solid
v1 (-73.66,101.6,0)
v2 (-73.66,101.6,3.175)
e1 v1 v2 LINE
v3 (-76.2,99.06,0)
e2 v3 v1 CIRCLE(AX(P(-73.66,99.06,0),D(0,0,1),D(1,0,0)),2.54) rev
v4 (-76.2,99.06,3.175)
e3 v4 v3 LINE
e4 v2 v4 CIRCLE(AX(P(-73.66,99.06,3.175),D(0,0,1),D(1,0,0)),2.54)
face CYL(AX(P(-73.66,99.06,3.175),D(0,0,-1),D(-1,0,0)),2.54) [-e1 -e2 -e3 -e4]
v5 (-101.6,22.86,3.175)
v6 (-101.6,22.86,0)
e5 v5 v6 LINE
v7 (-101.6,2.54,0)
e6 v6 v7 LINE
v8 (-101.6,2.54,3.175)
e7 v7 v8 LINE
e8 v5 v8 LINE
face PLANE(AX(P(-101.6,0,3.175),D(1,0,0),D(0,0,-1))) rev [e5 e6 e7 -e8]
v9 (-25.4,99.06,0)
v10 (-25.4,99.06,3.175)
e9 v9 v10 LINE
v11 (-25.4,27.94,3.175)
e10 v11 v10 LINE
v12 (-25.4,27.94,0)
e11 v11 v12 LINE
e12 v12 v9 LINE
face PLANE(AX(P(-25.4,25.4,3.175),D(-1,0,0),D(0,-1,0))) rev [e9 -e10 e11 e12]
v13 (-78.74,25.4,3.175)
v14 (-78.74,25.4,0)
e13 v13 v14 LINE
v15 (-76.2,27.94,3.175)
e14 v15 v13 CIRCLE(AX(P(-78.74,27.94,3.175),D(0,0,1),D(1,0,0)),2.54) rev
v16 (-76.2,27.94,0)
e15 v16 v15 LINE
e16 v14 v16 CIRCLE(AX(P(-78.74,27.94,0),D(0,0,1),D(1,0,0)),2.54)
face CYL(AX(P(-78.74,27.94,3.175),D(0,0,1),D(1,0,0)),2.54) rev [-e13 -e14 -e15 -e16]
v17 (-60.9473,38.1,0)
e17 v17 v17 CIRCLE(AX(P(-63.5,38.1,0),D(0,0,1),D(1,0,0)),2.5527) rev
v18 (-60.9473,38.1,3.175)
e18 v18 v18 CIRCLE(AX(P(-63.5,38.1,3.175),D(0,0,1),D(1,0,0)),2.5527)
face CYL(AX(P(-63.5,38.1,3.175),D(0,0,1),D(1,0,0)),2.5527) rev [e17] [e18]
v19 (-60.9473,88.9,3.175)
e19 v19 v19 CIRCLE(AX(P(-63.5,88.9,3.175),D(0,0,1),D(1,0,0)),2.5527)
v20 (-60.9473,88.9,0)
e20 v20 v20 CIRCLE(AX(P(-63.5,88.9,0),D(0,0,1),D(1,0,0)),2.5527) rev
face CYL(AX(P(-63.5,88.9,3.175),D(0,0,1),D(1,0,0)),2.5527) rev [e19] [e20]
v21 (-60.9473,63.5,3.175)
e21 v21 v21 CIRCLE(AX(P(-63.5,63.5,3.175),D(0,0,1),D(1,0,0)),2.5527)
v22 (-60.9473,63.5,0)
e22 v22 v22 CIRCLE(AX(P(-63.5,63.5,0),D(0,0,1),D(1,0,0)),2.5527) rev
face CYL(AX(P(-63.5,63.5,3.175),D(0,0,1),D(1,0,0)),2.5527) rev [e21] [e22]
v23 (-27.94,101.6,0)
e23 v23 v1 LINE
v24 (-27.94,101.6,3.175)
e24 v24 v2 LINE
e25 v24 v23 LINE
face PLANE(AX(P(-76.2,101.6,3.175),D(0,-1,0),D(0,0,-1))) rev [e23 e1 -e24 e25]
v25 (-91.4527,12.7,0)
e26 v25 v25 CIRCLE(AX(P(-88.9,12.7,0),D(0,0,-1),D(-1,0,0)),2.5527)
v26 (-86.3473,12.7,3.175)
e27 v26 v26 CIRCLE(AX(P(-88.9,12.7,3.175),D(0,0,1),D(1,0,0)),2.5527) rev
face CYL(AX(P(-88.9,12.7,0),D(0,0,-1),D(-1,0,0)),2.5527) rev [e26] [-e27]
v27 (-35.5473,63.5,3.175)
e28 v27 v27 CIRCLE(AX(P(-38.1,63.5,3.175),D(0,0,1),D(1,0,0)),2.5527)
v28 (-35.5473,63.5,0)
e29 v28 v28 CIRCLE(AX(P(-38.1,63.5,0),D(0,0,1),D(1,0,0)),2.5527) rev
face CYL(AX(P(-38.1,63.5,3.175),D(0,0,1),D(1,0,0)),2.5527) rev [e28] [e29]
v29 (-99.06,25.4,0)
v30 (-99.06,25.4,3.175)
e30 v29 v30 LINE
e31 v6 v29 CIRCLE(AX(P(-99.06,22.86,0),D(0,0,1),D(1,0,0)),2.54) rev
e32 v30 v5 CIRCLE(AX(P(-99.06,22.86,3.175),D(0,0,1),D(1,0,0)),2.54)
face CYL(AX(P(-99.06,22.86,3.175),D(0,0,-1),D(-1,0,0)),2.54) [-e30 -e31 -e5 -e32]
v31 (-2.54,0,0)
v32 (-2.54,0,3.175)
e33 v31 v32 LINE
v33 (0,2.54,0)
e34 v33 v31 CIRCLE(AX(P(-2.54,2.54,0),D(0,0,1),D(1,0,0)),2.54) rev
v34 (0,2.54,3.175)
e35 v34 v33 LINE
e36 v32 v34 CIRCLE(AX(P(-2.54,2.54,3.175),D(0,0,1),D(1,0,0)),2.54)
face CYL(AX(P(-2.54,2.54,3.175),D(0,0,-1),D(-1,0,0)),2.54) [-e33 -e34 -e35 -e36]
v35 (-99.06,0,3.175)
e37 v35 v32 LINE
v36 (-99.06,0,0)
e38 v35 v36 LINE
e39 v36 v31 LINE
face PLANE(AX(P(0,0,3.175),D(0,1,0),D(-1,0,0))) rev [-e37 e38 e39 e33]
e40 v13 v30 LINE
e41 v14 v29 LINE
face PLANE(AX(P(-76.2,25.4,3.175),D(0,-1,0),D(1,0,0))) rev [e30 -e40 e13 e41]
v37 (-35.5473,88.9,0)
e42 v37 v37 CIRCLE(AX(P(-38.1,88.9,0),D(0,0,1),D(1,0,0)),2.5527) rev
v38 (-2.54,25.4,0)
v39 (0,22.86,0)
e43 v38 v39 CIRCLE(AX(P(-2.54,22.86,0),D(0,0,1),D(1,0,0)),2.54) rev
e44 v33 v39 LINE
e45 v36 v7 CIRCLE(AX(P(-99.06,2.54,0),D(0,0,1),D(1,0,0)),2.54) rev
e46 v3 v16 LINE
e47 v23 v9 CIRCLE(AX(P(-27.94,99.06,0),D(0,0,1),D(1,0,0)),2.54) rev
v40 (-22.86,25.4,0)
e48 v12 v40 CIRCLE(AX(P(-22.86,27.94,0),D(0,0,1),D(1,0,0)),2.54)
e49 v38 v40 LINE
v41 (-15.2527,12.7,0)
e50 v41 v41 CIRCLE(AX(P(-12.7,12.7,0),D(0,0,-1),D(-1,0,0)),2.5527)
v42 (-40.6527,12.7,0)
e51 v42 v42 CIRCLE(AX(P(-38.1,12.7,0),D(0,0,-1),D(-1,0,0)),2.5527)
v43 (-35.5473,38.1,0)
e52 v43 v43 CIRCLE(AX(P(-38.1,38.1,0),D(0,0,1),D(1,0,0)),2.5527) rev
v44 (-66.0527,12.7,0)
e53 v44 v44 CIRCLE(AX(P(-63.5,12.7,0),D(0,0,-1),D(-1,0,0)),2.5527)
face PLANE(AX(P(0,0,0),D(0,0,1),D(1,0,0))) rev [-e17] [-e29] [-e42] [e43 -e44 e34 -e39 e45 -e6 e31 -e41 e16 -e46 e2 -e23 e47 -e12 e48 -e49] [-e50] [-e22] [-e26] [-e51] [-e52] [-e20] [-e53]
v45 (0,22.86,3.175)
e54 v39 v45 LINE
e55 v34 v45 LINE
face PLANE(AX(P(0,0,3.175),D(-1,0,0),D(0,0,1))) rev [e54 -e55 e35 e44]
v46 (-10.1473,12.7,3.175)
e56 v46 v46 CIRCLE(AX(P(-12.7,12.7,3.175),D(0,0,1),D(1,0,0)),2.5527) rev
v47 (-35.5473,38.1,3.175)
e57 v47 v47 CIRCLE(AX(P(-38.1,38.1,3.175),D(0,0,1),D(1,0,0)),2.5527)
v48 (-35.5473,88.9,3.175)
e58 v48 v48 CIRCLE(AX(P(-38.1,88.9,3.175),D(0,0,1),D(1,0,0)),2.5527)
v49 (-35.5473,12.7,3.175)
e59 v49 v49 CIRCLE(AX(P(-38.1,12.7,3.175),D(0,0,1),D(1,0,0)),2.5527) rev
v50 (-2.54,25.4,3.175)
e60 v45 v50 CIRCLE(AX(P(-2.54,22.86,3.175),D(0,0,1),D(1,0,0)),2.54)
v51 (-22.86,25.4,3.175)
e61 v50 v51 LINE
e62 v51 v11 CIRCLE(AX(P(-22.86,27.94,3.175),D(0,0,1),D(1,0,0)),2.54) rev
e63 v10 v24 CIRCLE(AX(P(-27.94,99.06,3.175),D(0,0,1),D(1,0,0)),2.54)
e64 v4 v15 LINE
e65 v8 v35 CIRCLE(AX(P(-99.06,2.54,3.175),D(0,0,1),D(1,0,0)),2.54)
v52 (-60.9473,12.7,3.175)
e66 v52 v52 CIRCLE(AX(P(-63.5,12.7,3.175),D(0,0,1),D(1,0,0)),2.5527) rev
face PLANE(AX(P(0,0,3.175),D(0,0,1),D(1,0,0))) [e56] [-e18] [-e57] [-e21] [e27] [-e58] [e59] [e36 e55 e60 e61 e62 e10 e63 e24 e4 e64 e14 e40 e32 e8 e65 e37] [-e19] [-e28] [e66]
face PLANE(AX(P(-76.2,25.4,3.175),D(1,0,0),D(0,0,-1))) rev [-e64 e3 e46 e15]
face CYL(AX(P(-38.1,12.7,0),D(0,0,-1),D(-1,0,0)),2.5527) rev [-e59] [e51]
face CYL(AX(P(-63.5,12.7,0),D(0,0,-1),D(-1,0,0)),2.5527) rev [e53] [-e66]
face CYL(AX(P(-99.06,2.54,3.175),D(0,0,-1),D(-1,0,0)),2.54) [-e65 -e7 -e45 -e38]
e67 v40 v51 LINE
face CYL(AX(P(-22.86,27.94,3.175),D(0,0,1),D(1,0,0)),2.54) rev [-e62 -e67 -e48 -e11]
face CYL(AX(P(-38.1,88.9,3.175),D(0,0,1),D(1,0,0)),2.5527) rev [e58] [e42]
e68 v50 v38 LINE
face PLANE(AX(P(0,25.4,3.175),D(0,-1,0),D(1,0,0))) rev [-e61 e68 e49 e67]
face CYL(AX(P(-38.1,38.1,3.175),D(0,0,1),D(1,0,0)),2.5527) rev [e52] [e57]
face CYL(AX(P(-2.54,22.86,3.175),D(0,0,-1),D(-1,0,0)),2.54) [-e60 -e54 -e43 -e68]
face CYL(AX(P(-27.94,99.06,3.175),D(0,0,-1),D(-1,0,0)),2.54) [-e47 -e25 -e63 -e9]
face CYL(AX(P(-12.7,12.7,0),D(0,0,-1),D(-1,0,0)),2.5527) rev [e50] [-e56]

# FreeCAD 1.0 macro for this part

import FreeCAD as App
import Part
import Sketcher
from FreeCAD import Vector
Q = App.Units.Quantity


def edges_at(feature, points):
    """Names of the edges that pass closest to the given points."""
    edges = feature.Shape.Edges
    near = lambda p: min(range(len(edges)), key=lambda i: edges[i].distToShape(Part.Vertex(*p))[0])
    return sorted({f"Edge{near(p) + 1}" for p in points})


def add_polygon(sketch, points):
    """Adds a closed chain of lines whose ends are joined by coincident constraints."""
    first, n = sketch.GeometryCount, len(points)
    for a, b in zip(points, points[1:] + points[:1]):
        sketch.addGeometry(Part.LineSegment(App.Vector(*a, 0), App.Vector(*b, 0)), False)
    for i in range(n):
        sketch.addConstraint(Sketcher.Constraint("Coincident", first + i, 2, first + (i + 1) % n, 1))

doc = App.newDocument("Part")
body = doc.addObject("PartDesign::Body", "Body")

sketch1 = doc.addObject("Sketcher::SketchObject", "Sketch")
body.addObject(sketch1)
sketch1.AttachmentSupport = (doc.XY_Plane, [""])
sketch1.MapMode = "FlatFace"
add_polygon(sketch1, [(-76.2, 25.4), (-101.6, 25.4), (-101.6, 0), (0, 0), (0, 25.4), (-25.4, 25.4), (-25.4, 101.6), (-76.2, 101.6)])
sketch1.addConstraint(Sketcher.Constraint("Horizontal", 0))
sketch1.addConstraint(Sketcher.Constraint("Vertical", 1))
sketch1.addConstraint(Sketcher.Constraint("Horizontal", 2))
sketch1.addConstraint(Sketcher.Constraint("Vertical", 3))
sketch1.addConstraint(Sketcher.Constraint("Horizontal", 4))
sketch1.addConstraint(Sketcher.Constraint("Vertical", 5))
sketch1.addConstraint(Sketcher.Constraint("Horizontal", 6))
sketch1.addConstraint(Sketcher.Constraint("Vertical", 7))
sketch1.addConstraint(Sketcher.Constraint("Coincident", 2, 2, -1, 1))
sketch1.addConstraint(Sketcher.Constraint("Horizontal", 0, 2, 3, 2))
sketch1.addConstraint(Sketcher.Constraint("Equal", 0, 4))
sketch1.addConstraint(Sketcher.Constraint("Equal", 4, 1))
sketch1.addConstraint(Sketcher.Constraint("DistanceX", 0, 2, 0, 1, Q("1 in")))
sketch1.addConstraint(Sketcher.Constraint("DistanceX", 2, 1, 2, 2, Q("4 in")))
sketch1.addConstraint(Sketcher.Constraint("DistanceY", 5, 1, 5, 2, Q("3 in")))
pad1 = doc.addObject("PartDesign::Pad", "Pad")
body.addObject(pad1)
pad1.Profile = sketch1
pad1.Length = Q("0.125 in")
doc.recompute()

fillet = doc.addObject("PartDesign::Fillet", "Fillet")
body.addObject(fillet)
fillet.Base = (pad1, edges_at(pad1, [
    (0, 0, 1.587),
    (-101.6, 0, 1.587),
    (-101.6, 25.4, 1.587),
    (-76.2, 25.4, 1.587),
    (-76.2, 101.6, 1.587),
    (-25.4, 101.6, 1.587),
    (-25.4, 25.4, 1.587),
    (0, 25.4, 1.587),
]))
fillet.Radius = Q("0.1 in")

sketch2 = doc.addObject("Sketcher::SketchObject", "Sketch001")
body.addObject(sketch2)
sketch2.AttachmentSupport = (doc.XY_Plane, [""])
sketch2.MapMode = "FlatFace"
sketch2.AttachmentOffset = App.Placement(Vector(0, 0, 0.125 * 25.4), App.Rotation())
sketch2.addGeometry(Part.Circle(Vector(-63.5, 88.9, 0), Vector(0, 0, 1), 2.5527), False)
sketch2.addGeometry(Part.Circle(Vector(-63.5, 63.5, 0), Vector(0, 0, 1), 2.5527), False)
sketch2.addGeometry(Part.Circle(Vector(-63.5, 38.1, 0), Vector(0, 0, 1), 2.5527), False)
sketch2.addGeometry(Part.Circle(Vector(-38.1, 88.9, 0), Vector(0, 0, 1), 2.5527), False)
sketch2.addGeometry(Part.Circle(Vector(-38.1, 63.5, 0), Vector(0, 0, 1), 2.5527), False)
sketch2.addGeometry(Part.Circle(Vector(-38.1, 38.1, 0), Vector(0, 0, 1), 2.5527), False)
sketch2.addConstraint(Sketcher.Constraint("Equal", 0, 1))
sketch2.addConstraint(Sketcher.Constraint("Equal", 1, 2))
sketch2.addConstraint(Sketcher.Constraint("Equal", 2, 3))
sketch2.addConstraint(Sketcher.Constraint("Equal", 3, 4))
sketch2.addConstraint(Sketcher.Constraint("Equal", 4, 5))
sketch2.addConstraint(Sketcher.Constraint("Horizontal", 0, 3, 3, 3))
sketch2.addConstraint(Sketcher.Constraint("Horizontal", 1, 3, 4, 3))
sketch2.addConstraint(Sketcher.Constraint("Horizontal", 2, 3, 5, 3))
sketch2.addConstraint(Sketcher.Constraint("Vertical", 0, 3, 1, 3))
sketch2.addConstraint(Sketcher.Constraint("Vertical", 1, 3, 2, 3))
sketch2.addConstraint(Sketcher.Constraint("Vertical", 3, 3, 4, 3))
sketch2.addConstraint(Sketcher.Constraint("Vertical", 4, 3, 5, 3))
sketch2.addConstraint(Sketcher.Constraint("Diameter", 0, Q("0.201 in")))
sketch2.addConstraint(Sketcher.Constraint("DistanceY", 1, 3, 0, 3, Q("1 in")))
sketch2.addConstraint(Sketcher.Constraint("DistanceY", 2, 3, 1, 3, Q("1 in")))
sketch2.addConstraint(Sketcher.Constraint("DistanceX", 0, 3, 3, 3, Q("1 in")))
sketch2.addConstraint(Sketcher.Constraint("DistanceX", 0, 3, -1, 1, Q("2.5 in")))
sketch2.addConstraint(Sketcher.Constraint("DistanceY", -1, 1, 0, 3, Q("3.5 in")))
doc.recompute()
hole = doc.addObject("PartDesign::Hole", "Hole")
body.addObject(hole)
hole.Profile = sketch2
hole.ThreadType = "None"
hole.Diameter = Q("0.201 in")
hole.DepthType = "ThroughAll"

sketch3 = doc.addObject("Sketcher::SketchObject", "Sketch002")
body.addObject(sketch3)
sketch3.AttachmentSupport = (doc.XY_Plane, [""])
sketch3.MapMode = "FlatFace"
sketch3.addGeometry(Part.Circle(Vector(-88.9, 12.7, 0), Vector(0, 0, 1), 2.5527), False)
sketch3.addGeometry(Part.Circle(Vector(-63.5, 12.7, 0), Vector(0, 0, 1), 2.5527), False)
sketch3.addGeometry(Part.Circle(Vector(-38.1, 12.7, 0), Vector(0, 0, 1), 2.5527), False)
sketch3.addGeometry(Part.Circle(Vector(-12.7, 12.7, 0), Vector(0, 0, 1), 2.5527), False)
sketch3.addConstraint(Sketcher.Constraint("Equal", 0, 1))
sketch3.addConstraint(Sketcher.Constraint("Equal", 1, 2))
sketch3.addConstraint(Sketcher.Constraint("Equal", 2, 3))
sketch3.addConstraint(Sketcher.Constraint("Horizontal", 0, 3, 1, 3))
sketch3.addConstraint(Sketcher.Constraint("Horizontal", 1, 3, 2, 3))
sketch3.addConstraint(Sketcher.Constraint("Horizontal", 2, 3, 3, 3))
sketch3.addConstraint(Sketcher.Constraint("Diameter", 0, Q("0.201 in")))
sketch3.addConstraint(Sketcher.Constraint("DistanceX", 0, 3, 1, 3, Q("1 in")))
sketch3.addConstraint(Sketcher.Constraint("DistanceX", 1, 3, 2, 3, Q("1 in")))
sketch3.addConstraint(Sketcher.Constraint("DistanceX", 2, 3, 3, 3, Q("1 in")))
sketch3.addConstraint(Sketcher.Constraint("DistanceX", 0, 3, -1, 1, Q("3.5 in")))
sketch3.addConstraint(Sketcher.Constraint("DistanceY", -1, 1, 0, 3, Q("0.5 in")))
doc.recompute()
hole2 = doc.addObject("PartDesign::Hole", "Hole001")
body.addObject(hole2)
hole2.Profile = sketch3
hole2.ThreadType = "None"
hole2.Diameter = Q("0.201 in")
hole2.DepthType = "ThroughAll"
hole2.Reversed = True

doc.recompute()
